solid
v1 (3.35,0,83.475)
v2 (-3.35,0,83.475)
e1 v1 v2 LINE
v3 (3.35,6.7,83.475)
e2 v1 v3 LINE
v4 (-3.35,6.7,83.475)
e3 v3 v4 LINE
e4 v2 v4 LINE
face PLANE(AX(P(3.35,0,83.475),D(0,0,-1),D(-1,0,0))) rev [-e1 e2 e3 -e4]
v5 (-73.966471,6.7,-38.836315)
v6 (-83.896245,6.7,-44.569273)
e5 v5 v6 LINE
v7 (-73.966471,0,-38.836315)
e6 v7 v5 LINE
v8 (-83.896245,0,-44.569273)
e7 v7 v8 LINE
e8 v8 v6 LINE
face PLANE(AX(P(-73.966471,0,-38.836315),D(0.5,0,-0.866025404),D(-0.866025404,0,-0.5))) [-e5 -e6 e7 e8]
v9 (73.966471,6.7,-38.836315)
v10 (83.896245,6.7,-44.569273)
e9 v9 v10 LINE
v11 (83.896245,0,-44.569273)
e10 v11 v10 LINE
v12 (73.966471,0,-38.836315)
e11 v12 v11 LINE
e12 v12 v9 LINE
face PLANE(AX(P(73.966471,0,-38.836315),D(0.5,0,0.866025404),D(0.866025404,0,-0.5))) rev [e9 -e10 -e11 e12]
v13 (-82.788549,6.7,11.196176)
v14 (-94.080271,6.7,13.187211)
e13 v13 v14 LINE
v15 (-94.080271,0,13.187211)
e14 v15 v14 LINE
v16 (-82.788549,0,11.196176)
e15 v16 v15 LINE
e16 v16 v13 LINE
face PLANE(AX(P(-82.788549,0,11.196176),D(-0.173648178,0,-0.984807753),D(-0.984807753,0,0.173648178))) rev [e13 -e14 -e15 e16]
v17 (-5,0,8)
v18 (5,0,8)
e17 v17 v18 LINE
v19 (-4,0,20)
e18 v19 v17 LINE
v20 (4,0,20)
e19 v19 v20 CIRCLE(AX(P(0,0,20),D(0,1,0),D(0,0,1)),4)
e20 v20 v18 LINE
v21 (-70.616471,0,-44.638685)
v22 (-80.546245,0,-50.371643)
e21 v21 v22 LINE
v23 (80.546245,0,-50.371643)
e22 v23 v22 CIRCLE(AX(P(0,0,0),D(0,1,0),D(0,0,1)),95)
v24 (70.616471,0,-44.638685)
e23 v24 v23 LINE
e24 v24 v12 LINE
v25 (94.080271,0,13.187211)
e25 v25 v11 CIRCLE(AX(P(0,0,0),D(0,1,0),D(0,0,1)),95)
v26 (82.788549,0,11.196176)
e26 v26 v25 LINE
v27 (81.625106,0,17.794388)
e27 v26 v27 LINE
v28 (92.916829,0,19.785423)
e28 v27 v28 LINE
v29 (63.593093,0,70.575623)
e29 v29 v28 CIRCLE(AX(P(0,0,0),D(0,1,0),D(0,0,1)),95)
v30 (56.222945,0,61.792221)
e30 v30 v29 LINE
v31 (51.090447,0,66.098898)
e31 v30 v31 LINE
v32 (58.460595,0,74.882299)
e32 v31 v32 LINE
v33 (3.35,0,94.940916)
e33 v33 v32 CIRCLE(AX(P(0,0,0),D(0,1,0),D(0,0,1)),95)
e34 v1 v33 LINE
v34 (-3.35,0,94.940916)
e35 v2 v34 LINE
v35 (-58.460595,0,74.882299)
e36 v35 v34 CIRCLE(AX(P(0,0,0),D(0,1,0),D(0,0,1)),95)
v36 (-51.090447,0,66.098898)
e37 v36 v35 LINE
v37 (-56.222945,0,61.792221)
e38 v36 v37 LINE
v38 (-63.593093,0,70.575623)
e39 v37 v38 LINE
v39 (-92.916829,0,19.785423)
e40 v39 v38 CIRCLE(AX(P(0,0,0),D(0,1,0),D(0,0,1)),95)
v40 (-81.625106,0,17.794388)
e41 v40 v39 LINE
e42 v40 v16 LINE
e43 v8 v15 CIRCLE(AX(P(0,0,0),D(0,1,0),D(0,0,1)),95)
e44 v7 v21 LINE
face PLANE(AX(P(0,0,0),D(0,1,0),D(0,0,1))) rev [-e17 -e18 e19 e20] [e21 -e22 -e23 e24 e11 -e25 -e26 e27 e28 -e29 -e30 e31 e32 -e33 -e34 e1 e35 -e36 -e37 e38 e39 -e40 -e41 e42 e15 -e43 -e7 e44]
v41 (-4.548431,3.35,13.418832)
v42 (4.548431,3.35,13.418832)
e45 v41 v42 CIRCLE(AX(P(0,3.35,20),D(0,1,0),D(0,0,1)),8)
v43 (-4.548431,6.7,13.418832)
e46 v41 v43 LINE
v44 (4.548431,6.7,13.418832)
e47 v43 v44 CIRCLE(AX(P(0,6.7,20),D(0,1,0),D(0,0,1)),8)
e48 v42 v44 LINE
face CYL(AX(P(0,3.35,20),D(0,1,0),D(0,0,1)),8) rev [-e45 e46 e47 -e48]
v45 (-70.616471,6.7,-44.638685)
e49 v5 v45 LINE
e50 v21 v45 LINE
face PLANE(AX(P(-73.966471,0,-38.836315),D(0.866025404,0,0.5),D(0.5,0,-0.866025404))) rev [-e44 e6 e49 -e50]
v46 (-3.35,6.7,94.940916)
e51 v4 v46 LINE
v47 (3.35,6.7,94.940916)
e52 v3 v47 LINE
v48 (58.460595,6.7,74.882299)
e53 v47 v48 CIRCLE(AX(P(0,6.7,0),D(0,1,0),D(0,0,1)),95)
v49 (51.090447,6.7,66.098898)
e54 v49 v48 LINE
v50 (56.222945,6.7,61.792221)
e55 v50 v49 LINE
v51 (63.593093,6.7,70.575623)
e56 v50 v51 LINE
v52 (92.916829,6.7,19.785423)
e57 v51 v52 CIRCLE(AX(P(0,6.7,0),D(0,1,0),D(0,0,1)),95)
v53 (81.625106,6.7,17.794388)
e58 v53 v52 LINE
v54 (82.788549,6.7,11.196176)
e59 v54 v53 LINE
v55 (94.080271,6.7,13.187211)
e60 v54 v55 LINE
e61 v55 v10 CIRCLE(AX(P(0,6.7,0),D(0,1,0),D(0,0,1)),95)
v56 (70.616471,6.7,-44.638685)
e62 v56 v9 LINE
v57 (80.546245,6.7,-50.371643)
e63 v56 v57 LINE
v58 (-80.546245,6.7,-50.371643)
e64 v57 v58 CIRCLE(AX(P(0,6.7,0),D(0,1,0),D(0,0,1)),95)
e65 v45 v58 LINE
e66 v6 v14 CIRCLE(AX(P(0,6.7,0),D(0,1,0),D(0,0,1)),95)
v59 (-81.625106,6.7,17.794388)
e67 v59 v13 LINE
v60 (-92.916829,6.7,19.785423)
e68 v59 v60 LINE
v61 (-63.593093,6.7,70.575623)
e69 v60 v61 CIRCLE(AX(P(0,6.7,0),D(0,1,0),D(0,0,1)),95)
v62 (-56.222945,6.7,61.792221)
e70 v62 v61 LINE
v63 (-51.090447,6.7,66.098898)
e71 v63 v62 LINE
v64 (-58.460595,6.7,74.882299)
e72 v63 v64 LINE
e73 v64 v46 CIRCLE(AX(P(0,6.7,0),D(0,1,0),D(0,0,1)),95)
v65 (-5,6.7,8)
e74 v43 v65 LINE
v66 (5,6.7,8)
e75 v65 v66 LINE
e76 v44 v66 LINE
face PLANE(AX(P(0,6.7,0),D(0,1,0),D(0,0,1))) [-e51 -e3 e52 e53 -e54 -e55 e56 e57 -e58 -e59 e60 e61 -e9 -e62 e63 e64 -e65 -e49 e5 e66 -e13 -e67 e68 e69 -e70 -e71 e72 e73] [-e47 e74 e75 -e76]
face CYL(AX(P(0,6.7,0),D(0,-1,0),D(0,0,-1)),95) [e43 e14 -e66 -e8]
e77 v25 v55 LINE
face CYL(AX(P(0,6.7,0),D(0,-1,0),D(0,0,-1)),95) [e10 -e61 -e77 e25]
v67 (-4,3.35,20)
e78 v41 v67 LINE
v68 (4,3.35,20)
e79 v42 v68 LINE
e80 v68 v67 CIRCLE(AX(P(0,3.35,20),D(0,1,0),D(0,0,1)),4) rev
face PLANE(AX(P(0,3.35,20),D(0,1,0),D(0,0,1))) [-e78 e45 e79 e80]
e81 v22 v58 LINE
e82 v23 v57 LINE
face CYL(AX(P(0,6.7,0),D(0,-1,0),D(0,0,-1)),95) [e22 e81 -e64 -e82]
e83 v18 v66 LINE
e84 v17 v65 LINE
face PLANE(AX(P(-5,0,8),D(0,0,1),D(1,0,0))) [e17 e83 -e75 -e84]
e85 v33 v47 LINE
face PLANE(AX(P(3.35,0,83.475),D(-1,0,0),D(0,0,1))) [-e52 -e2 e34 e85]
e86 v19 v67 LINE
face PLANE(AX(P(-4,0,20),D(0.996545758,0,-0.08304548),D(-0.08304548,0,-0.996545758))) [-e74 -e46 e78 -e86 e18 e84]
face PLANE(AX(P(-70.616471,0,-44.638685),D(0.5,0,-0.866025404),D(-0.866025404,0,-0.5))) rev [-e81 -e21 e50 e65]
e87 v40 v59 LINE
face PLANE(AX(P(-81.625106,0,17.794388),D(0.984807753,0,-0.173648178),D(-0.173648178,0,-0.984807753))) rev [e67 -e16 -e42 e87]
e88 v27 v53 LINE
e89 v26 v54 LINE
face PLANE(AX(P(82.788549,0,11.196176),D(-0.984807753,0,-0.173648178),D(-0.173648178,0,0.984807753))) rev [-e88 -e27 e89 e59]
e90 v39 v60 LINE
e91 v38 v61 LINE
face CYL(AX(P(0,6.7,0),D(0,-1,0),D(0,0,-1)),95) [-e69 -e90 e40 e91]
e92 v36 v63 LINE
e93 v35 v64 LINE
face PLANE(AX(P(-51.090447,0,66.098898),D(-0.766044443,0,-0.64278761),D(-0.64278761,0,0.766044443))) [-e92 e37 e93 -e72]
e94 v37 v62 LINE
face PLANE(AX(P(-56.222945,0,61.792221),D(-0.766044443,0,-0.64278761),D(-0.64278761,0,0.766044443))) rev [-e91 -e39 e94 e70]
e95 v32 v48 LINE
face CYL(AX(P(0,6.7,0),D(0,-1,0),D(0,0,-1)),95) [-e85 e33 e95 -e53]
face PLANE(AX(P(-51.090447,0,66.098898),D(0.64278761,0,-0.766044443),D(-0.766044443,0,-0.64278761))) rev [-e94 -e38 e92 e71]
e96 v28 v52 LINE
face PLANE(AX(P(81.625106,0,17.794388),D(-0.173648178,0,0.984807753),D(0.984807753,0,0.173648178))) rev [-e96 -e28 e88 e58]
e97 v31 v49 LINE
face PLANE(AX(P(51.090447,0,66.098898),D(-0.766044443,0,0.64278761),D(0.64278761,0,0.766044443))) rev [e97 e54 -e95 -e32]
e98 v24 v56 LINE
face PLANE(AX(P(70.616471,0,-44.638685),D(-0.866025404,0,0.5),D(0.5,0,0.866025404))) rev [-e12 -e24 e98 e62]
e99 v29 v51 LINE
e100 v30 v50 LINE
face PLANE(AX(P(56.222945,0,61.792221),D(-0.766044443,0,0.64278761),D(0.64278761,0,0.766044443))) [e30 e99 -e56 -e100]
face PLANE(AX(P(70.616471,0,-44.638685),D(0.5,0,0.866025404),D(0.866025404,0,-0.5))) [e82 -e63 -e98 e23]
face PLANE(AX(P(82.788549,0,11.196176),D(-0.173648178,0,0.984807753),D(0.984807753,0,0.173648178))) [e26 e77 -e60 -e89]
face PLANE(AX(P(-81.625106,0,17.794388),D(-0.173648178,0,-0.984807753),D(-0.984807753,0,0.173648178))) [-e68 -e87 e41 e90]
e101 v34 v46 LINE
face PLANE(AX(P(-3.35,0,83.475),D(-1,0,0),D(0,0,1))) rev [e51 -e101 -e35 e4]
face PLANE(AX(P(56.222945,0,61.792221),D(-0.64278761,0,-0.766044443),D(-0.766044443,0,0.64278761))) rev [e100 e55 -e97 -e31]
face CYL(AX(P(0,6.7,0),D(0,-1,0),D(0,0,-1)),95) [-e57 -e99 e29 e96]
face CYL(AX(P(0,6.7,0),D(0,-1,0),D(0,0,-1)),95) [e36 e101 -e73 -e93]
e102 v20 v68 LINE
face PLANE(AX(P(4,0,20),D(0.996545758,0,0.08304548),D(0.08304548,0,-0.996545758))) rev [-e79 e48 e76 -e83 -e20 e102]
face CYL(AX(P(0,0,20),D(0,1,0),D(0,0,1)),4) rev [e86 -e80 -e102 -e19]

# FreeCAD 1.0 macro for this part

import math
import FreeCAD as App
import Part
import Sketcher

V = App.Vector
Q = App.Units.Quantity


def add_polygon(sketch, points):
    """Adds a closed chain of lines whose ends are joined by coincident constraints."""
    first, n = sketch.GeometryCount, len(points)
    for a, b in zip(points, points[1:] + points[:1]):
        sketch.addGeometry(Part.LineSegment(App.Vector(*a, 0), App.Vector(*b, 0)), False)
    for i in range(n):
        sketch.addConstraint(Sketcher.Constraint("Coincident", first + i, 2, first + (i + 1) % n, 1))

doc = App.newDocument("Part")
body = doc.addObject("PartDesign::Body", "Body")

# Sketch on XZ plane
sketch1 = body.newObject("Sketcher::SketchObject", "Sketch")
sketch1.AttachmentSupport = (doc.getObject("XZ_Plane"), [""])
sketch1.MapMode = "FlatFace"
sketch1.addGeometry(Part.Circle(V(0, 0, 0), V(0, 0, 1), 95), False)
sketch1.addConstraint([
    Sketcher.Constraint("Coincident", 0, 3, -1, 1),
    Sketcher.Constraint("Diameter", 0, 190.0),
])
pad1 = body.newObject("PartDesign::Pad", "Pad")
pad1.Profile = sketch1
pad1.Length = 6.7
pad1.Reversed = True

# Sketch on XZ plane
sketch2 = body.newObject("Sketcher::SketchObject", "Sketch001")
sketch2.AttachmentSupport = (doc.getObject("XZ_Plane"), [""])
sketch2.MapMode = "FlatFace"
sketch2.AttachmentOffset = App.Placement(V(0, 0, -6.7), App.Rotation())
sketch2.addGeometry(Part.LineSegment(V(5, 8, 0), V(-5, 8, 0)), False)  # 0
sketch2.addGeometry(Part.LineSegment(V(-5, 8, 0), V(-4, 20, 0)), False)  # 1
sketch2.addGeometry(Part.ArcOfCircle(Part.Circle(V(0, 20, 0), V(0, 0, 1), 4), math.radians(0), math.radians(180)), False)  # 2
sketch2.addGeometry(Part.LineSegment(V(4, 20, 0), V(5, 8, 0)), False)  # 3
add_polygon(sketch2, [(87.936979, -54.638685), (70.616471, -44.638685), (73.966471, -38.836315), (91.286979, -48.836315)])  # lines 4-7
add_polygon(sketch2, [(69.078697, 77.11311), (56.222945, 61.792221), (51.090447, 66.098898), (63.946199, 81.419787)])  # lines 8-11
add_polygon(sketch2, [(102.484704, 14.669139), (82.788549, 11.196176), (81.625106, 17.794388), (101.321261, 21.267351)])  # lines 12-15
add_polygon(sketch2, [(-3.35, 83.475), (-3.35, 103.475), (3.35, 103.475), (3.35, 83.475)])  # lines 16-19
add_polygon(sketch2, [(-63.946199, 81.419787), (-51.090447, 66.098898), (-56.222945, 61.792221), (-69.078697, 77.11311)])  # lines 20-23
add_polygon(sketch2, [(-101.321261, 21.267351), (-81.625106, 17.794388), (-82.788549, 11.196176), (-102.484704, 14.669139)])  # lines 24-27
add_polygon(sketch2, [(-91.286979, -48.836315), (-73.966471, -38.836315), (-70.616471, -44.638685), (-87.936979, -54.638685)])  # lines 28-31
sketch2.addConstraint([
    Sketcher.Constraint("Coincident", 0, 2, 1, 1),
    Sketcher.Constraint("Coincident", 1, 2, 2, 2),
    Sketcher.Constraint("Coincident", 2, 1, 3, 1),
    Sketcher.Constraint("Coincident", 3, 2, 0, 1),
    Sketcher.Constraint("Horizontal", 0),
    Sketcher.Constraint("Vertical", 16),
    Sketcher.Constraint("Horizontal", 17),
    Sketcher.Constraint("Vertical", 18),
    Sketcher.Constraint("Horizontal", 19),
    Sketcher.Constraint("Symmetric", 1, 2, 2, 1, -2),
    Sketcher.Constraint("Symmetric", 9, 2, 20, 2, -2),
    Sketcher.Constraint("Symmetric", 8, 2, 21, 2, -2),
    Sketcher.Constraint("Symmetric", 11, 2, 22, 2, -2),
    Sketcher.Constraint("Symmetric", 10, 2, 23, 2, -2),
    Sketcher.Constraint("Symmetric", 13, 2, 24, 2, -2),
    Sketcher.Constraint("Symmetric", 12, 2, 25, 2, -2),
    Sketcher.Constraint("Symmetric", 15, 2, 26, 2, -2),
    Sketcher.Constraint("Symmetric", 14, 2, 27, 2, -2),
    Sketcher.Constraint("Symmetric", 5, 2, 28, 2, -2),
    Sketcher.Constraint("Symmetric", 4, 2, 29, 2, -2),
    Sketcher.Constraint("Symmetric", 7, 2, 30, 2, -2),
    Sketcher.Constraint("Symmetric", 6, 2, 31, 2, -2),
    Sketcher.Constraint("Perpendicular", 4, 5),
    Sketcher.Constraint("Perpendicular", 5, 6),
    Sketcher.Constraint("Perpendicular", 6, 7),
    Sketcher.Constraint("Perpendicular", 8, 9),
    Sketcher.Constraint("Perpendicular", 9, 10),
    Sketcher.Constraint("Perpendicular", 10, 11),
    Sketcher.Constraint("Perpendicular", 12, 13),
    Sketcher.Constraint("Perpendicular", 13, 14),
    Sketcher.Constraint("Perpendicular", 14, 15),
    Sketcher.Constraint("Horizontal", 2, 3, 1, 2),
    Sketcher.Constraint("Equal", 1, 3),
    Sketcher.Constraint("Equal", 6, 8),
    Sketcher.Constraint("Equal", 7, 9),
    Sketcher.Constraint("Equal", 10, 12),
    Sketcher.Constraint("Equal", 11, 13),
    Sketcher.Constraint("Radius", 2, 4.0),
    Sketcher.Constraint("DistanceX", 0, 2, 0, 1, 10.0),
    Sketcher.Constraint("DistanceY", 16, 1, 16, 2, 20.0),
    Sketcher.Constraint("Angle", 4, Q("150 deg")),
    Sketcher.Constraint("Angle", 8, Q("-130 deg")),
    Sketcher.Constraint("Angle", 12, Q("-170 deg")),
    Sketcher.Constraint("Distance", 4, 20.0),
    Sketcher.Constraint("DistanceX", 17, 1, 17, 2, 6.7),
    Sketcher.Constraint("DistanceY", -1, 1, 2, 3, 20.0),
    Sketcher.Constraint("DistanceY", -1, 1, 0, 2, 8.0),
    Sketcher.Constraint("Distance", 5, 6.7),
    Sketcher.Constraint("DistanceX", 16, 2, -1, 1, 3.35),
    Sketcher.Constraint("DistanceY", -1, 1, 16, 2, 103.475),
    Sketcher.Constraint("DistanceY", -1, 1, 9, 2, 66.098898),
    Sketcher.Constraint("DistanceX", -1, 1, 10, 2, 63.946199),
    Sketcher.Constraint("DistanceX", 9, 2, 12, 2, 31.698102),
    Sketcher.Constraint("DistanceY", 24, 2, 23, 2, 63.6254),
    Sketcher.Constraint("DistanceX", -1, 1, 4, 2, 70.616471),
    Sketcher.Constraint("DistanceY", 5, 2, 12, 2, 50.032491),
])
pocket1 = body.newObject("PartDesign::Pocket", "Pocket")
pocket1.Profile = sketch2
pocket1.Length = 6.7
pocket1.Reversed = True

# Sketch on XZ plane
sketch3 = body.newObject("Sketcher::SketchObject", "Sketch002")
sketch3.AttachmentSupport = (doc.getObject("XZ_Plane"), [""])
sketch3.MapMode = "FlatFace"
sketch3.AttachmentOffset = App.Placement(V(0, 0, -6.7), App.Rotation())
sketch3.addGeometry(Part.Circle(V(0, 20, 0), V(0, 0, 1), 8), False)
sketch3.addConstraint([
    Sketcher.Constraint("PointOnObject", 0, 3, -2),
    Sketcher.Constraint("Diameter", 0, 16.0),
    Sketcher.Constraint("DistanceY", -1, 1, 0, 3, 20.0),
])
pocket2 = body.newObject("PartDesign::Pocket", "Pocket001")
pocket2.Profile = sketch3
pocket2.Length = 3.35
pocket2.Reversed = True

doc.recompute()
